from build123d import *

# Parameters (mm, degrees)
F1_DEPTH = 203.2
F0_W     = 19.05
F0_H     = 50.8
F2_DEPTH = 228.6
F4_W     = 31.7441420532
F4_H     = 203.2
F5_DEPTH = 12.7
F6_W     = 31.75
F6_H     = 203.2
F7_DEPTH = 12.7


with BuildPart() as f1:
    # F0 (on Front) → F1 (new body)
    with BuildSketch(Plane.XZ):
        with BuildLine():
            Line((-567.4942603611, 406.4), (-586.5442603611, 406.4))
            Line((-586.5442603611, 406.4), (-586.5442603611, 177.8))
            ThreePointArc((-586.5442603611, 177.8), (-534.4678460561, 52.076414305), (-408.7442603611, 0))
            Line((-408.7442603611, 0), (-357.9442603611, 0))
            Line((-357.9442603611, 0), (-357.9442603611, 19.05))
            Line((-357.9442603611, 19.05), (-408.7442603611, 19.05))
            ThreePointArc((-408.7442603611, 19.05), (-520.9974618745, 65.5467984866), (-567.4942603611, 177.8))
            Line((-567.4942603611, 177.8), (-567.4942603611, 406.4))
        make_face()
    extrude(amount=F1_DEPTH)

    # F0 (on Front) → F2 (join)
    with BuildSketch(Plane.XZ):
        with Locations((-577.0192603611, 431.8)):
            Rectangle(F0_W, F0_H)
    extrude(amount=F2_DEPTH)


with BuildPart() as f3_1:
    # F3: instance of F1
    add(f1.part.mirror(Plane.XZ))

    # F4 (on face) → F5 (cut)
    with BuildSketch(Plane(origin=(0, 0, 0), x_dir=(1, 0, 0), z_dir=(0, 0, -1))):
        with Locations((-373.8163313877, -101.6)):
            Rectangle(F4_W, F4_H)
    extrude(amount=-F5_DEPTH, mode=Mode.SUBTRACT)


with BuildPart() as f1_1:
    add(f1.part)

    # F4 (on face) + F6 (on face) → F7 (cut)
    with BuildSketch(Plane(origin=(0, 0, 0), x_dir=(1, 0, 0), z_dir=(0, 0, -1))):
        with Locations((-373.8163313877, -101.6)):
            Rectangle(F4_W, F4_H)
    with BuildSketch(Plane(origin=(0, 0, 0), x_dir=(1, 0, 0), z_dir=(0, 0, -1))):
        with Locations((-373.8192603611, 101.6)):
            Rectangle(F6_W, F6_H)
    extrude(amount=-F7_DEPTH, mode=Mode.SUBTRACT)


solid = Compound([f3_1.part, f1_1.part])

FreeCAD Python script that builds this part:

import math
import FreeCAD as App
import Part
import Sketcher

V = App.Vector
Q = App.Units.Quantity

doc = App.newDocument("Part")
params = doc.addObject("Spreadsheet::Sheet", "Params")
for row, (alias, value) in enumerate([
    ("sketch1_radius", "7 in"),
    ("sketch1_width", "2 in"),
    ("sketch1_height", "9 in"),
    ("sketch1_radius2", "6.25 in"),
    ("pad1_length", "8 in"),
    ("sketch2_height", "2 in"),
    ("sketch2_width", "0.75 in"),
    ("pad2_length", "9 in"),
    ("sketch3_height", "8 in"),
    ("pocket1_length", "0.5 in"),
    ("sketch4_height", "8 in"),
    ("sketch4_width", "1.25 in"),
    ("pocket2_length", "0.5 in"),
], start=1):
    params.set(f"A{row}", alias)
    params.set(f"B{row}", "=" + value)
    params.setAlias(f"B{row}", alias)

body = doc.addObject("PartDesign::Body", "Body")

sketch1 = doc.addObject("Sketcher::SketchObject", "Sketch")
body.addObject(sketch1)
sketch1.AttachmentSupport = (doc.XZ_Plane, [""])
sketch1.MapMode = "FlatFace"
sketch1.addGeometry([
    Part.LineSegment(V(-567, 406, 0), V(-587, 406, 0)),
    Part.LineSegment(V(-587, 406, 0), V(-587, 178, 0)),
    Part.ArcOfCircle(Part.Circle(V(-409, 178, 0), V(0, 0, 1), 178), math.radians(180), math.radians(270)),
    Part.LineSegment(V(-409, 0, 0), V(-358, 0, 0)),
    Part.LineSegment(V(-358, 0, 0), V(-358, 19, 0)),
    Part.LineSegment(V(-358, 19, 0), V(-409, 19, 0)),
    Part.ArcOfCircle(Part.Circle(V(-409, 178, 0), V(0, 0, 1), 159), math.radians(180), math.radians(270)),
    Part.LineSegment(V(-567, 178, 0), V(-567, 406, 0)),
], False)
sketch1.addConstraint([
    Sketcher.Constraint("Coincident", 0, 2, 1, 1),
    Sketcher.Constraint("Tangent", 1, 2, 2, 1),
    Sketcher.Constraint("Tangent", 2, 2, 3, 1),
    Sketcher.Constraint("Coincident", 3, 2, 4, 1),
    Sketcher.Constraint("Coincident", 4, 2, 5, 1),
    Sketcher.Constraint("Tangent", 5, 2, 6, 2),
    Sketcher.Constraint("Tangent", 6, 1, 7, 1),
    Sketcher.Constraint("Coincident", 7, 2, 0, 1),
    Sketcher.Constraint("Horizontal", 0),
    Sketcher.Constraint("Vertical", 1),
    Sketcher.Constraint("Horizontal", 3),
    Sketcher.Constraint("Vertical", 4),
    Sketcher.Constraint("Horizontal", 5),
    Sketcher.Constraint("Vertical", 7),
    Sketcher.Constraint("Coincident", 6, 3, 2, 3),
    Sketcher.Constraint("PointOnObject", 2, 2, -1),
    Sketcher.Constraint("Radius", 2, Q("7 in")),
    Sketcher.Constraint("DistanceX", 3, 1, 3, 2, Q("2 in")),
    Sketcher.Constraint("DistanceY", 1, 2, 1, 1, Q("9 in")),
    Sketcher.Constraint("Radius", 6, Q("6.25 in")),
    Sketcher.Constraint("DistanceX", 2, 3, -1, 1, 408.74426),
])
sketch1.setExpression("Constraints[16]", "Params.sketch1_radius")
sketch1.setExpression("Constraints[17]", "Params.sketch1_width")
sketch1.setExpression("Constraints[18]", "Params.sketch1_height")
sketch1.setExpression("Constraints[19]", "Params.sketch1_radius2")
pad1 = doc.addObject("PartDesign::Pad", "Pad")
body.addObject(pad1)
pad1.Profile = sketch1
pad1.setExpression("Length", "Params.pad1_length")

sketch2 = doc.addObject("Sketcher::SketchObject", "Sketch001")
body.addObject(sketch2)
sketch2.AttachmentSupport = (doc.XZ_Plane, [""])
sketch2.MapMode = "FlatFace"
sketch2.addGeometry([
    Part.LineSegment(V(-587, 457, 0), V(-587, 406, 0)),
    Part.LineSegment(V(-587, 406, 0), V(-567, 406, 0)),
    Part.LineSegment(V(-567, 406, 0), V(-567, 457, 0)),
    Part.LineSegment(V(-567, 457, 0), V(-587, 457, 0)),
], False)
sketch2.addConstraint([
    Sketcher.Constraint("Coincident", 0, 2, 1, 1),
    Sketcher.Constraint("Coincident", 1, 2, 2, 1),
    Sketcher.Constraint("Coincident", 2, 2, 3, 1),
    Sketcher.Constraint("Coincident", 3, 2, 0, 1),
    Sketcher.Constraint("Vertical", 0),
    Sketcher.Constraint("Horizontal", 1),
    Sketcher.Constraint("Vertical", 2),
    Sketcher.Constraint("Horizontal", 3),
    Sketcher.Constraint("DistanceY", 0, 2, 0, 1, Q("2 in")),
    Sketcher.Constraint("DistanceY", -1, 1, 0, 2, Q("16 in")),
    Sketcher.Constraint("DistanceX", 1, 1, 1, 2, Q("0.75 in")),
    Sketcher.Constraint("DistanceX", 0, 2, -1, 1, 586.54426),
])
sketch2.setExpression("Constraints[8]", "Params.sketch2_height")
sketch2.setExpression("Constraints[10]", "Params.sketch2_width")
pad2 = doc.addObject("PartDesign::Pad", "Pad001")
body.addObject(pad2)
pad2.Profile = sketch2
pad2.setExpression("Length", "Params.pad2_length")
body2 = doc.addObject("PartDesign::Body", "Body001")
doc.recompute()

mirroring = doc.addObject("Part::Mirroring", "Mirroring")
mirroring.Source = body
mirroring.Base = V(0, 0, 0)
mirroring.Normal = V(0, -1, 0)
body2.BaseFeature = mirroring
doc.recompute()

sketch3 = doc.addObject("Sketcher::SketchObject", "Sketch002")
body2.addObject(sketch3)
sketch3.AttachmentSupport = (doc.getObject("XY_Plane001"), [""])
sketch3.MapMode = "FlatFace"
sketch3.addGeometry([
    Part.LineSegment(V(-390, 0, 0), V(-390, 203, 0)),
    Part.LineSegment(V(-390, 203, 0), V(-358, 203, 0)),
    Part.LineSegment(V(-358, 203, 0), V(-358, 0, 0)),
    Part.LineSegment(V(-358, 0, 0), V(-390, 0, 0)),
], False)
sketch3.addConstraint([
    Sketcher.Constraint("Coincident", 0, 2, 1, 1),
    Sketcher.Constraint("Coincident", 1, 2, 2, 1),
    Sketcher.Constraint("Coincident", 2, 2, 3, 1),
    Sketcher.Constraint("Coincident", 3, 2, 0, 1),
    Sketcher.Constraint("Vertical", 0),
    Sketcher.Constraint("Horizontal", 1),
    Sketcher.Constraint("Vertical", 2),
    Sketcher.Constraint("Horizontal", 3),
    Sketcher.Constraint("PointOnObject", 2, 2, -1),
    Sketcher.Constraint("DistanceY", 0, 1, 0, 2, Q("8 in")),
    Sketcher.Constraint("DistanceX", 1, 1, 1, 2, 31.744142),
    Sketcher.Constraint("DistanceX", 1, 2, -1, 1, 357.94426),
])
sketch3.setExpression("Constraints[9]", "Params.sketch3_height")
pocket1 = doc.addObject("PartDesign::Pocket", "Pocket")
body2.addObject(pocket1)
pocket1.Profile = sketch3
pocket1.setExpression("Length", "Params.pocket1_length")
pocket1.Reversed = True

sketch4 = doc.addObject("Sketcher::SketchObject", "Sketch003")
body.addObject(sketch4)
sketch4.AttachmentSupport = (doc.XY_Plane, [""])
sketch4.MapMode = "FlatFace"
sketch4.addGeometry([
    Part.LineSegment(V(-389.688402, 0, 0), V(-389.688402, 203.2, 0)),
    Part.LineSegment(V(-389.688402, 203.2, 0), V(-357.94426, 203.2, 0)),
    Part.LineSegment(V(-357.94426, 203.2, 0), V(-357.94426, -203.2, 0)),
    Part.LineSegment(V(-357.94426, -203.2, 0), V(-389.69426, -203.2, 0)),
    Part.LineSegment(V(-389.69426, -203.2, 0), V(-389.69426, 0, 0)),
    Part.LineSegment(V(-389.69426, 0, 0), V(-389.688402, 0, 0)),
], False)
sketch4.addConstraint([
    Sketcher.Constraint("Coincident", 0, 2, 1, 1),
    Sketcher.Constraint("Coincident", 1, 2, 2, 1),
    Sketcher.Constraint("Coincident", 2, 2, 3, 1),
    Sketcher.Constraint("Coincident", 3, 2, 4, 1),
    Sketcher.Constraint("Coincident", 4, 2, 5, 1),
    Sketcher.Constraint("Coincident", 5, 2, 0, 1),
    Sketcher.Constraint("Vertical", 0),
    Sketcher.Constraint("Horizontal", 1),
    Sketcher.Constraint("Vertical", 2),
    Sketcher.Constraint("Horizontal", 3),
    Sketcher.Constraint("Vertical", 4),
    Sketcher.Constraint("Horizontal", 5),
    Sketcher.Constraint("PointOnObject", 4, 2, -1),
    Sketcher.Constraint("Equal", 0, 4),
    Sketcher.Constraint("DistanceY", 0, 1, 0, 2, Q("8 in")),
    Sketcher.Constraint("DistanceX", 3, 2, 3, 1, Q("1.25 in")),
    Sketcher.Constraint("DistanceX", 1, 1, 1, 2, 31.744142),
    Sketcher.Constraint("DistanceX", 1, 2, -1, 1, 357.94426),
])
sketch4.setExpression("Constraints[14]", "Params.sketch4_height")
sketch4.setExpression("Constraints[15]", "Params.sketch4_width")
pocket2 = doc.addObject("PartDesign::Pocket", "Pocket001")
body.addObject(pocket2)
pocket2.Profile = sketch4
pocket2.setExpression("Length", "Params.pocket2_length")
pocket2.Reversed = True
mirroring.Visibility = False

doc.recompute()
